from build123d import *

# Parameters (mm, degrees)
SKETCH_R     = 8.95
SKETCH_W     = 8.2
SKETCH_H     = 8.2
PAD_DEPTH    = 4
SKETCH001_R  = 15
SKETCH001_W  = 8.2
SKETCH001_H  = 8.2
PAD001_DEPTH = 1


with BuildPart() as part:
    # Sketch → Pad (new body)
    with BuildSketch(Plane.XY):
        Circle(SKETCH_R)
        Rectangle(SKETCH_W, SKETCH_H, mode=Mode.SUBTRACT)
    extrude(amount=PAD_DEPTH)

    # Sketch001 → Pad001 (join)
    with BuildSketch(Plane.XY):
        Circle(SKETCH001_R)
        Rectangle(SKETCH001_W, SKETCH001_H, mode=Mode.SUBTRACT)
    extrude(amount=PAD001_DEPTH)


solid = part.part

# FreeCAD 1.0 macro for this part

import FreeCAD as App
import Part
import Sketcher

V = App.Vector


def add_polygon(sketch, points):
    """Adds a closed chain of lines whose ends are joined by coincident constraints."""
    first, n = sketch.GeometryCount, len(points)
    for a, b in zip(points, points[1:] + points[:1]):
        sketch.addGeometry(Part.LineSegment(App.Vector(*a, 0), App.Vector(*b, 0)), False)
    for i in range(n):
        sketch.addConstraint(Sketcher.Constraint("Coincident", first + i, 2, first + (i + 1) % n, 1))

doc = App.newDocument("Part")
body = doc.addObject("PartDesign::Body", "Body")

sketch1 = body.newObject("Sketcher::SketchObject", "Sketch")
sketch1.AttachmentSupport = (doc.getObject("XY_Plane"), [""])
sketch1.MapMode = "FlatFace"
sketch1.addGeometry(Part.Circle(V(0, 0, 0), V(0, 0, 1), 9), False)
add_polygon(sketch1, [(4, -4), (-4, -4), (-4, 4), (4, 4)])
sketch1.addConstraint([
    Sketcher.Constraint("Horizontal", 1),
    Sketcher.Constraint("Vertical", 2),
    Sketcher.Constraint("Horizontal", 3),
    Sketcher.Constraint("Vertical", 4),
    Sketcher.Constraint("Coincident", 0, 3, -1, 1),
    Sketcher.Constraint("Symmetric", 1, 2, 3, 2, -1, 1),
    Sketcher.Constraint("Equal", 3, 2),
    Sketcher.Constraint("Diameter", 0, 17.9),
    Sketcher.Constraint("DistanceX", 1, 2, 1, 1, 8.2),
])
pad1 = body.newObject("PartDesign::Pad", "Pad")
pad1.Profile = sketch1
pad1.Length = 4

sketch2 = body.newObject("Sketcher::SketchObject", "Sketch001")
sketch2.AttachmentSupport = (doc.getObject("XY_Plane"), [""])
sketch2.MapMode = "FlatFace"
sketch2.addGeometry(Part.Circle(V(0, 0, 0), V(0, 0, 1), 15), False)
add_polygon(sketch2, [(4, -4), (-4, -4), (-4, 4), (4, 4)])
sketch2.addConstraint([
    Sketcher.Constraint("Horizontal", 1),
    Sketcher.Constraint("Vertical", 2),
    Sketcher.Constraint("Horizontal", 3),
    Sketcher.Constraint("Vertical", 4),
    Sketcher.Constraint("Coincident", 0, 3, -1, 1),
    Sketcher.Constraint("Symmetric", 1, 2, 3, 2, -1, 1),
    Sketcher.Constraint("Equal", 3, 2),
    Sketcher.Constraint("Diameter", 0, 30.0),
    Sketcher.Constraint("DistanceX", 1, 2, 1, 1, 8.2),
])
pad2 = body.newObject("PartDesign::Pad", "Pad001")
pad2.Profile = sketch2
pad2.Length = 1

doc.recompute()
